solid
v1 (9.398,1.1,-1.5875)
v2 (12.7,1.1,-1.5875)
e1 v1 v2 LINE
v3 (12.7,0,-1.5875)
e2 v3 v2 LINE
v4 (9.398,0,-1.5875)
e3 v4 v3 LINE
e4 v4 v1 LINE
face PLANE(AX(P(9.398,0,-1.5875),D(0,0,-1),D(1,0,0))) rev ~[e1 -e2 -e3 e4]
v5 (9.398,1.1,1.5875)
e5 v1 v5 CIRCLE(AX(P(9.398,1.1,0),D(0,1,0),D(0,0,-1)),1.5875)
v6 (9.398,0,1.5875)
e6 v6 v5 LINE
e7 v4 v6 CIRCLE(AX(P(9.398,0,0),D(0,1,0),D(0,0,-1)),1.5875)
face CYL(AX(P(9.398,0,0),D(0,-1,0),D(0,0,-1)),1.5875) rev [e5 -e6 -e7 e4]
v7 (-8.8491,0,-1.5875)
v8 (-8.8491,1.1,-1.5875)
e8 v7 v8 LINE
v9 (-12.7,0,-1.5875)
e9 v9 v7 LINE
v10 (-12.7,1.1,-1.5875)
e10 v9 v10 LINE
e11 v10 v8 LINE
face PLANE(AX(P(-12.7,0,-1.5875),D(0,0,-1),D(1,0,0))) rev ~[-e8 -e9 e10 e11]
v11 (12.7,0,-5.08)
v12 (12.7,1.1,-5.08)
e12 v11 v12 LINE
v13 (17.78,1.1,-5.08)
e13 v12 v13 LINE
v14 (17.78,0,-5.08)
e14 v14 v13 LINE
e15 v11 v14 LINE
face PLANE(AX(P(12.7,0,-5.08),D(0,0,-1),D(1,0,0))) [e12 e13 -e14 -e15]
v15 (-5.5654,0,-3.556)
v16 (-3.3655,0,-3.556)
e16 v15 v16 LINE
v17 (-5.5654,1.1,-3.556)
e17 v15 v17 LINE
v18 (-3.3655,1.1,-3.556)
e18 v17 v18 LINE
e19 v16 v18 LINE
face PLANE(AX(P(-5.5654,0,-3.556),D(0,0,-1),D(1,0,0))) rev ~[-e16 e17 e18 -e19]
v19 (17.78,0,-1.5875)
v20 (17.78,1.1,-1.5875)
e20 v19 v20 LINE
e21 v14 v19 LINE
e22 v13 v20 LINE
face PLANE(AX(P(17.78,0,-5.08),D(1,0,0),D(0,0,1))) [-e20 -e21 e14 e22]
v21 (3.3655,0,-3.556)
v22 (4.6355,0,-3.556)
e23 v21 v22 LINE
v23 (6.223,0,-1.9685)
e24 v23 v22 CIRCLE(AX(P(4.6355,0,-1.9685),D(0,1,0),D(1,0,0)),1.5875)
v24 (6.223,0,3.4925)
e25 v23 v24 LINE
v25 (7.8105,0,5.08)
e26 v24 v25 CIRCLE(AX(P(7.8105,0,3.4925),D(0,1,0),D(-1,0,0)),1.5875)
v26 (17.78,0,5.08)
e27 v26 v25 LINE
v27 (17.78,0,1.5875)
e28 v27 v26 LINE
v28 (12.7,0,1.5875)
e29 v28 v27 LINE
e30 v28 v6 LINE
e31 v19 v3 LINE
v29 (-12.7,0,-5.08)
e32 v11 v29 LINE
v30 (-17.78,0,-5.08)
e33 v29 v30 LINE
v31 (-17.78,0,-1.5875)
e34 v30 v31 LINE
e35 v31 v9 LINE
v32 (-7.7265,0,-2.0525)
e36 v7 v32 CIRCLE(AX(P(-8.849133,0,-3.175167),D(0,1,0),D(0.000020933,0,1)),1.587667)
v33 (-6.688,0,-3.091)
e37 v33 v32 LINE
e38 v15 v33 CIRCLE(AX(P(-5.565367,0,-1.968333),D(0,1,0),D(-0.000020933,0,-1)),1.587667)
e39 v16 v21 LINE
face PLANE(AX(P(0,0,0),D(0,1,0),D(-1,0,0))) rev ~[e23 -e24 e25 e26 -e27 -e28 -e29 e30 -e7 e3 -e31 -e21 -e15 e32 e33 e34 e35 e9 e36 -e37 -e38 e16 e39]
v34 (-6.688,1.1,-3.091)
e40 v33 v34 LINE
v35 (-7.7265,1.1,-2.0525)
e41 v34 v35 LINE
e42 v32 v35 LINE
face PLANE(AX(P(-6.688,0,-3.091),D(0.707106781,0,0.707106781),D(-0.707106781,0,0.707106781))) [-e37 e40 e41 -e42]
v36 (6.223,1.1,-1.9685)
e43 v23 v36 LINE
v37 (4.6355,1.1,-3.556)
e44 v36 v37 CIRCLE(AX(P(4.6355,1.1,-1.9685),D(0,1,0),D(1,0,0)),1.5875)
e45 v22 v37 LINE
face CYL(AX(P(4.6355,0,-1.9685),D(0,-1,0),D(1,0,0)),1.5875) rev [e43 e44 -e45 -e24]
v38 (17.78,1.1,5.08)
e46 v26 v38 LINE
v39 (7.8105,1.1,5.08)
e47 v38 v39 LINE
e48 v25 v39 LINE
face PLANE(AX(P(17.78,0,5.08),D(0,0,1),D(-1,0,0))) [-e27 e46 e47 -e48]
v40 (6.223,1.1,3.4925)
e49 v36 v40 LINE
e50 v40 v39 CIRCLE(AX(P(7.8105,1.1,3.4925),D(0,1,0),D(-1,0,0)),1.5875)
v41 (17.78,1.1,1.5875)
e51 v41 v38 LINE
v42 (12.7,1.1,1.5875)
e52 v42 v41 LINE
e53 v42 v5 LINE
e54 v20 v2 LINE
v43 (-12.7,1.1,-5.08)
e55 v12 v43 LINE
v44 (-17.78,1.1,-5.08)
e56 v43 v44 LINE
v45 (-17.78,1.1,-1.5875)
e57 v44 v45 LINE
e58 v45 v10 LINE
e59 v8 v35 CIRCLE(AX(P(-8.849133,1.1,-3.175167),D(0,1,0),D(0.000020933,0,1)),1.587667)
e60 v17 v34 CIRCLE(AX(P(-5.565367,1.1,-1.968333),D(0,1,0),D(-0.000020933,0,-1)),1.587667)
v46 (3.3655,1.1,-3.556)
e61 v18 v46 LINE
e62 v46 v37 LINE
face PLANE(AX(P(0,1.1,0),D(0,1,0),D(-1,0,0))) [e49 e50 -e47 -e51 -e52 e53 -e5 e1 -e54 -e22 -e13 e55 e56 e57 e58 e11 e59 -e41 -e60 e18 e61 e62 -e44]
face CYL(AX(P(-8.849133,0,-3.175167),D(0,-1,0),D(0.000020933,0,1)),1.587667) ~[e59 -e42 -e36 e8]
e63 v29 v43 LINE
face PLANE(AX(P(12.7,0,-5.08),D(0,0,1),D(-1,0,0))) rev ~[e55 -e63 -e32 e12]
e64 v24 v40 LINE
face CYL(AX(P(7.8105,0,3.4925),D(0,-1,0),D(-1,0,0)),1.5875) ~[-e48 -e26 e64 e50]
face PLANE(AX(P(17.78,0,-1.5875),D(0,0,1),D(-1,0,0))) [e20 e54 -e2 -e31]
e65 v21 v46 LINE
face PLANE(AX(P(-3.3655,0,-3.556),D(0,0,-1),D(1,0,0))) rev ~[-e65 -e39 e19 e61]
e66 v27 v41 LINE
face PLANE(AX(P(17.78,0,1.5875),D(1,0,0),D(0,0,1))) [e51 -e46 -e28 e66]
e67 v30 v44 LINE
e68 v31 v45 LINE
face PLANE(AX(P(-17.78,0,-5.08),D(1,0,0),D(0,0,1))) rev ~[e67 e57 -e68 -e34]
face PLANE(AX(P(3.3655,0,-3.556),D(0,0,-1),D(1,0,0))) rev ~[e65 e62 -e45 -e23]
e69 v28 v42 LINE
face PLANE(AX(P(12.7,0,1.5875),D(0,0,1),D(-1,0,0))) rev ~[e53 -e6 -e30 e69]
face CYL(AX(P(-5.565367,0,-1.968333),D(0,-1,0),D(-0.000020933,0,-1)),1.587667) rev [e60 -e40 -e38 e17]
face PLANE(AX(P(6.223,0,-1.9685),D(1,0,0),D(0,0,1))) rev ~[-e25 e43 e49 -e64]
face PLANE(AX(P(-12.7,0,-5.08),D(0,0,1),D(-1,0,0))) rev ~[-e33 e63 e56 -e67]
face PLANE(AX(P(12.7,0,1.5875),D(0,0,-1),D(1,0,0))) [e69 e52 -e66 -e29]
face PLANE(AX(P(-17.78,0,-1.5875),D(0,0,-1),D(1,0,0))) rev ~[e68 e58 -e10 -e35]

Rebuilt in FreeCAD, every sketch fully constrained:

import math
import FreeCAD as App
import Part
import Sketcher
Q = App.Units.Quantity

doc = App.newDocument("Part")
body = doc.addObject("PartDesign::Body", "Body")

# Sketch on XZ plane
sketch1 = doc.addObject("Sketcher::SketchObject", "Sketch")
body.addObject(sketch1)
sketch1.AttachmentSupport = (doc.XZ_Plane, [""])
sketch1.MapMode = "FlatFace"
sketch1.addGeometry(Part.LineSegment(App.Vector(-5.5654, -3.556, 0), App.Vector(4.6355, -3.556, 0)), False)
sketch1.addGeometry(Part.ArcOfCircle(Part.Circle(App.Vector(4.6355, -1.9685, 0), App.Vector(0, 0, 1), 1.5875), math.radians(-90), math.radians(0)), False)
sketch1.addGeometry(Part.LineSegment(App.Vector(6.223, -1.9685, 0), App.Vector(6.223, 3.4925, 0)), False)
sketch1.addGeometry(Part.ArcOfCircle(Part.Circle(App.Vector(7.8105, 3.4925, 0), App.Vector(0, 0, 1), 1.5875), math.radians(90), math.radians(180)), False)
sketch1.addGeometry(Part.LineSegment(App.Vector(7.8105, 5.08, 0), App.Vector(17.78, 5.08, 0)), False)
sketch1.addGeometry(Part.LineSegment(App.Vector(17.78, 5.08, 0), App.Vector(17.78, 1.5875, 0)), False)
sketch1.addGeometry(Part.LineSegment(App.Vector(17.78, 1.5875, 0), App.Vector(9.398, 1.5875, 0)), False)
sketch1.addGeometry(Part.ArcOfCircle(Part.Circle(App.Vector(9.398, 0, 0), App.Vector(0, 0, 1), 1.5875), math.radians(90), math.radians(270)), False)
sketch1.addGeometry(Part.LineSegment(App.Vector(9.398, -1.5875, 0), App.Vector(17.78, -1.5875, 0)), False)
sketch1.addGeometry(Part.LineSegment(App.Vector(17.78, -1.5875, 0), App.Vector(17.78, -5.08, 0)), False)
sketch1.addGeometry(Part.LineSegment(App.Vector(17.78, -5.08, 0), App.Vector(-17.78, -5.08, 0)), False)
sketch1.addGeometry(Part.LineSegment(App.Vector(-17.78, -5.08, 0), App.Vector(-17.78, -1.5875, 0)), False)
sketch1.addGeometry(Part.LineSegment(App.Vector(-17.78, -1.5875, 0), App.Vector(-8.8491, -1.5875, 0)), False)
sketch1.addGeometry(Part.ArcOfCircle(Part.Circle(App.Vector(-8.8491, -3.175, 0), App.Vector(0, 0, 1), 1.5875), math.radians(44.997448), math.radians(90)), False)
sketch1.addGeometry(Part.LineSegment(App.Vector(-7.7265, -2.0525, 0), App.Vector(-6.688, -3.091, 0)), False)
sketch1.addGeometry(Part.ArcOfCircle(Part.Circle(App.Vector(-5.5654, -1.9685, 0), App.Vector(0, 0, 1), 1.5875), math.radians(-135.002552), math.radians(-90)), False)
sketch1.addConstraint(Sketcher.Constraint("Tangent", 0, 2, 1, 1))
sketch1.addConstraint(Sketcher.Constraint("Tangent", 1, 2, 2, 1))
sketch1.addConstraint(Sketcher.Constraint("Tangent", 2, 2, 3, 2))
sketch1.addConstraint(Sketcher.Constraint("Tangent", 3, 1, 4, 1))
sketch1.addConstraint(Sketcher.Constraint("Coincident", 4, 2, 5, 1))
sketch1.addConstraint(Sketcher.Constraint("Coincident", 5, 2, 6, 1))
sketch1.addConstraint(Sketcher.Constraint("Tangent", 6, 2, 7, 1))
sketch1.addConstraint(Sketcher.Constraint("Tangent", 7, 2, 8, 1))
sketch1.addConstraint(Sketcher.Constraint("Coincident", 8, 2, 9, 1))
sketch1.addConstraint(Sketcher.Constraint("Coincident", 9, 2, 10, 1))
sketch1.addConstraint(Sketcher.Constraint("Coincident", 10, 2, 11, 1))
sketch1.addConstraint(Sketcher.Constraint("Coincident", 11, 2, 12, 1))
sketch1.addConstraint(Sketcher.Constraint("Tangent", 12, 2, 13, 2))
sketch1.addConstraint(Sketcher.Constraint("Tangent", 13, 1, 14, 1))
sketch1.addConstraint(Sketcher.Constraint("Tangent", 14, 2, 15, 1))
sketch1.addConstraint(Sketcher.Constraint("Tangent", 15, 2, 0, 1))
sketch1.addConstraint(Sketcher.Constraint("Horizontal", 0))
sketch1.addConstraint(Sketcher.Constraint("Vertical", 2))
sketch1.addConstraint(Sketcher.Constraint("Horizontal", 4))
sketch1.addConstraint(Sketcher.Constraint("Vertical", 5))
sketch1.addConstraint(Sketcher.Constraint("Horizontal", 6))
sketch1.addConstraint(Sketcher.Constraint("Horizontal", 8))
sketch1.addConstraint(Sketcher.Constraint("Vertical", 9))
sketch1.addConstraint(Sketcher.Constraint("Horizontal", 10))
sketch1.addConstraint(Sketcher.Constraint("Vertical", 11))
sketch1.addConstraint(Sketcher.Constraint("Horizontal", 12))
sketch1.addConstraint(Sketcher.Constraint("Equal", 1, 3))
sketch1.addConstraint(Sketcher.Constraint("Equal", 3, 7))
sketch1.addConstraint(Sketcher.Constraint("Equal", 7, 13))
sketch1.addConstraint(Sketcher.Constraint("Equal", 13, 15))
sketch1.addConstraint(Sketcher.Constraint("Symmetric", 4, 2, 10, 2, -1, 1))
sketch1.addConstraint(Sketcher.Constraint("Symmetric", 8, 2, 11, 2, -2))
sketch1.addConstraint(Sketcher.Constraint("PointOnObject", 7, 3, -1))
sketch1.addConstraint(Sketcher.Constraint("Angle", 14, Q("-45 deg")))
sketch1.addConstraint(Sketcher.Constraint("Radius", 1, Q("0.0625 in")))
sketch1.addConstraint(Sketcher.Constraint("DistanceY", -1, 1, 3, 1, Q("0.2 in")))
sketch1.addConstraint(Sketcher.Constraint("DistanceX", 10, 2, 10, 1, Q("1.4 in")))
sketch1.addConstraint(Sketcher.Constraint("DistanceX", 3, 3, 7, 3, Q("0.0625 in")))
sketch1.addConstraint(Sketcher.Constraint("DistanceX", 6, 2, 6, 1, Q("0.33 in")))
sketch1.addConstraint(Sketcher.Constraint("DistanceY", 2, 1, 2, 2, Q("0.215 in")))
sketch1.addConstraint(Sketcher.Constraint("DistanceX", 0, 1, 0, 2, Q("0.4016 in")))
pad1 = doc.addObject("PartDesign::Pad", "Pad")
body.addObject(pad1)
pad1.Profile = sketch1
pad1.Length = Q("0.0433071 in")
pad1.Reversed = True

doc.recompute()
